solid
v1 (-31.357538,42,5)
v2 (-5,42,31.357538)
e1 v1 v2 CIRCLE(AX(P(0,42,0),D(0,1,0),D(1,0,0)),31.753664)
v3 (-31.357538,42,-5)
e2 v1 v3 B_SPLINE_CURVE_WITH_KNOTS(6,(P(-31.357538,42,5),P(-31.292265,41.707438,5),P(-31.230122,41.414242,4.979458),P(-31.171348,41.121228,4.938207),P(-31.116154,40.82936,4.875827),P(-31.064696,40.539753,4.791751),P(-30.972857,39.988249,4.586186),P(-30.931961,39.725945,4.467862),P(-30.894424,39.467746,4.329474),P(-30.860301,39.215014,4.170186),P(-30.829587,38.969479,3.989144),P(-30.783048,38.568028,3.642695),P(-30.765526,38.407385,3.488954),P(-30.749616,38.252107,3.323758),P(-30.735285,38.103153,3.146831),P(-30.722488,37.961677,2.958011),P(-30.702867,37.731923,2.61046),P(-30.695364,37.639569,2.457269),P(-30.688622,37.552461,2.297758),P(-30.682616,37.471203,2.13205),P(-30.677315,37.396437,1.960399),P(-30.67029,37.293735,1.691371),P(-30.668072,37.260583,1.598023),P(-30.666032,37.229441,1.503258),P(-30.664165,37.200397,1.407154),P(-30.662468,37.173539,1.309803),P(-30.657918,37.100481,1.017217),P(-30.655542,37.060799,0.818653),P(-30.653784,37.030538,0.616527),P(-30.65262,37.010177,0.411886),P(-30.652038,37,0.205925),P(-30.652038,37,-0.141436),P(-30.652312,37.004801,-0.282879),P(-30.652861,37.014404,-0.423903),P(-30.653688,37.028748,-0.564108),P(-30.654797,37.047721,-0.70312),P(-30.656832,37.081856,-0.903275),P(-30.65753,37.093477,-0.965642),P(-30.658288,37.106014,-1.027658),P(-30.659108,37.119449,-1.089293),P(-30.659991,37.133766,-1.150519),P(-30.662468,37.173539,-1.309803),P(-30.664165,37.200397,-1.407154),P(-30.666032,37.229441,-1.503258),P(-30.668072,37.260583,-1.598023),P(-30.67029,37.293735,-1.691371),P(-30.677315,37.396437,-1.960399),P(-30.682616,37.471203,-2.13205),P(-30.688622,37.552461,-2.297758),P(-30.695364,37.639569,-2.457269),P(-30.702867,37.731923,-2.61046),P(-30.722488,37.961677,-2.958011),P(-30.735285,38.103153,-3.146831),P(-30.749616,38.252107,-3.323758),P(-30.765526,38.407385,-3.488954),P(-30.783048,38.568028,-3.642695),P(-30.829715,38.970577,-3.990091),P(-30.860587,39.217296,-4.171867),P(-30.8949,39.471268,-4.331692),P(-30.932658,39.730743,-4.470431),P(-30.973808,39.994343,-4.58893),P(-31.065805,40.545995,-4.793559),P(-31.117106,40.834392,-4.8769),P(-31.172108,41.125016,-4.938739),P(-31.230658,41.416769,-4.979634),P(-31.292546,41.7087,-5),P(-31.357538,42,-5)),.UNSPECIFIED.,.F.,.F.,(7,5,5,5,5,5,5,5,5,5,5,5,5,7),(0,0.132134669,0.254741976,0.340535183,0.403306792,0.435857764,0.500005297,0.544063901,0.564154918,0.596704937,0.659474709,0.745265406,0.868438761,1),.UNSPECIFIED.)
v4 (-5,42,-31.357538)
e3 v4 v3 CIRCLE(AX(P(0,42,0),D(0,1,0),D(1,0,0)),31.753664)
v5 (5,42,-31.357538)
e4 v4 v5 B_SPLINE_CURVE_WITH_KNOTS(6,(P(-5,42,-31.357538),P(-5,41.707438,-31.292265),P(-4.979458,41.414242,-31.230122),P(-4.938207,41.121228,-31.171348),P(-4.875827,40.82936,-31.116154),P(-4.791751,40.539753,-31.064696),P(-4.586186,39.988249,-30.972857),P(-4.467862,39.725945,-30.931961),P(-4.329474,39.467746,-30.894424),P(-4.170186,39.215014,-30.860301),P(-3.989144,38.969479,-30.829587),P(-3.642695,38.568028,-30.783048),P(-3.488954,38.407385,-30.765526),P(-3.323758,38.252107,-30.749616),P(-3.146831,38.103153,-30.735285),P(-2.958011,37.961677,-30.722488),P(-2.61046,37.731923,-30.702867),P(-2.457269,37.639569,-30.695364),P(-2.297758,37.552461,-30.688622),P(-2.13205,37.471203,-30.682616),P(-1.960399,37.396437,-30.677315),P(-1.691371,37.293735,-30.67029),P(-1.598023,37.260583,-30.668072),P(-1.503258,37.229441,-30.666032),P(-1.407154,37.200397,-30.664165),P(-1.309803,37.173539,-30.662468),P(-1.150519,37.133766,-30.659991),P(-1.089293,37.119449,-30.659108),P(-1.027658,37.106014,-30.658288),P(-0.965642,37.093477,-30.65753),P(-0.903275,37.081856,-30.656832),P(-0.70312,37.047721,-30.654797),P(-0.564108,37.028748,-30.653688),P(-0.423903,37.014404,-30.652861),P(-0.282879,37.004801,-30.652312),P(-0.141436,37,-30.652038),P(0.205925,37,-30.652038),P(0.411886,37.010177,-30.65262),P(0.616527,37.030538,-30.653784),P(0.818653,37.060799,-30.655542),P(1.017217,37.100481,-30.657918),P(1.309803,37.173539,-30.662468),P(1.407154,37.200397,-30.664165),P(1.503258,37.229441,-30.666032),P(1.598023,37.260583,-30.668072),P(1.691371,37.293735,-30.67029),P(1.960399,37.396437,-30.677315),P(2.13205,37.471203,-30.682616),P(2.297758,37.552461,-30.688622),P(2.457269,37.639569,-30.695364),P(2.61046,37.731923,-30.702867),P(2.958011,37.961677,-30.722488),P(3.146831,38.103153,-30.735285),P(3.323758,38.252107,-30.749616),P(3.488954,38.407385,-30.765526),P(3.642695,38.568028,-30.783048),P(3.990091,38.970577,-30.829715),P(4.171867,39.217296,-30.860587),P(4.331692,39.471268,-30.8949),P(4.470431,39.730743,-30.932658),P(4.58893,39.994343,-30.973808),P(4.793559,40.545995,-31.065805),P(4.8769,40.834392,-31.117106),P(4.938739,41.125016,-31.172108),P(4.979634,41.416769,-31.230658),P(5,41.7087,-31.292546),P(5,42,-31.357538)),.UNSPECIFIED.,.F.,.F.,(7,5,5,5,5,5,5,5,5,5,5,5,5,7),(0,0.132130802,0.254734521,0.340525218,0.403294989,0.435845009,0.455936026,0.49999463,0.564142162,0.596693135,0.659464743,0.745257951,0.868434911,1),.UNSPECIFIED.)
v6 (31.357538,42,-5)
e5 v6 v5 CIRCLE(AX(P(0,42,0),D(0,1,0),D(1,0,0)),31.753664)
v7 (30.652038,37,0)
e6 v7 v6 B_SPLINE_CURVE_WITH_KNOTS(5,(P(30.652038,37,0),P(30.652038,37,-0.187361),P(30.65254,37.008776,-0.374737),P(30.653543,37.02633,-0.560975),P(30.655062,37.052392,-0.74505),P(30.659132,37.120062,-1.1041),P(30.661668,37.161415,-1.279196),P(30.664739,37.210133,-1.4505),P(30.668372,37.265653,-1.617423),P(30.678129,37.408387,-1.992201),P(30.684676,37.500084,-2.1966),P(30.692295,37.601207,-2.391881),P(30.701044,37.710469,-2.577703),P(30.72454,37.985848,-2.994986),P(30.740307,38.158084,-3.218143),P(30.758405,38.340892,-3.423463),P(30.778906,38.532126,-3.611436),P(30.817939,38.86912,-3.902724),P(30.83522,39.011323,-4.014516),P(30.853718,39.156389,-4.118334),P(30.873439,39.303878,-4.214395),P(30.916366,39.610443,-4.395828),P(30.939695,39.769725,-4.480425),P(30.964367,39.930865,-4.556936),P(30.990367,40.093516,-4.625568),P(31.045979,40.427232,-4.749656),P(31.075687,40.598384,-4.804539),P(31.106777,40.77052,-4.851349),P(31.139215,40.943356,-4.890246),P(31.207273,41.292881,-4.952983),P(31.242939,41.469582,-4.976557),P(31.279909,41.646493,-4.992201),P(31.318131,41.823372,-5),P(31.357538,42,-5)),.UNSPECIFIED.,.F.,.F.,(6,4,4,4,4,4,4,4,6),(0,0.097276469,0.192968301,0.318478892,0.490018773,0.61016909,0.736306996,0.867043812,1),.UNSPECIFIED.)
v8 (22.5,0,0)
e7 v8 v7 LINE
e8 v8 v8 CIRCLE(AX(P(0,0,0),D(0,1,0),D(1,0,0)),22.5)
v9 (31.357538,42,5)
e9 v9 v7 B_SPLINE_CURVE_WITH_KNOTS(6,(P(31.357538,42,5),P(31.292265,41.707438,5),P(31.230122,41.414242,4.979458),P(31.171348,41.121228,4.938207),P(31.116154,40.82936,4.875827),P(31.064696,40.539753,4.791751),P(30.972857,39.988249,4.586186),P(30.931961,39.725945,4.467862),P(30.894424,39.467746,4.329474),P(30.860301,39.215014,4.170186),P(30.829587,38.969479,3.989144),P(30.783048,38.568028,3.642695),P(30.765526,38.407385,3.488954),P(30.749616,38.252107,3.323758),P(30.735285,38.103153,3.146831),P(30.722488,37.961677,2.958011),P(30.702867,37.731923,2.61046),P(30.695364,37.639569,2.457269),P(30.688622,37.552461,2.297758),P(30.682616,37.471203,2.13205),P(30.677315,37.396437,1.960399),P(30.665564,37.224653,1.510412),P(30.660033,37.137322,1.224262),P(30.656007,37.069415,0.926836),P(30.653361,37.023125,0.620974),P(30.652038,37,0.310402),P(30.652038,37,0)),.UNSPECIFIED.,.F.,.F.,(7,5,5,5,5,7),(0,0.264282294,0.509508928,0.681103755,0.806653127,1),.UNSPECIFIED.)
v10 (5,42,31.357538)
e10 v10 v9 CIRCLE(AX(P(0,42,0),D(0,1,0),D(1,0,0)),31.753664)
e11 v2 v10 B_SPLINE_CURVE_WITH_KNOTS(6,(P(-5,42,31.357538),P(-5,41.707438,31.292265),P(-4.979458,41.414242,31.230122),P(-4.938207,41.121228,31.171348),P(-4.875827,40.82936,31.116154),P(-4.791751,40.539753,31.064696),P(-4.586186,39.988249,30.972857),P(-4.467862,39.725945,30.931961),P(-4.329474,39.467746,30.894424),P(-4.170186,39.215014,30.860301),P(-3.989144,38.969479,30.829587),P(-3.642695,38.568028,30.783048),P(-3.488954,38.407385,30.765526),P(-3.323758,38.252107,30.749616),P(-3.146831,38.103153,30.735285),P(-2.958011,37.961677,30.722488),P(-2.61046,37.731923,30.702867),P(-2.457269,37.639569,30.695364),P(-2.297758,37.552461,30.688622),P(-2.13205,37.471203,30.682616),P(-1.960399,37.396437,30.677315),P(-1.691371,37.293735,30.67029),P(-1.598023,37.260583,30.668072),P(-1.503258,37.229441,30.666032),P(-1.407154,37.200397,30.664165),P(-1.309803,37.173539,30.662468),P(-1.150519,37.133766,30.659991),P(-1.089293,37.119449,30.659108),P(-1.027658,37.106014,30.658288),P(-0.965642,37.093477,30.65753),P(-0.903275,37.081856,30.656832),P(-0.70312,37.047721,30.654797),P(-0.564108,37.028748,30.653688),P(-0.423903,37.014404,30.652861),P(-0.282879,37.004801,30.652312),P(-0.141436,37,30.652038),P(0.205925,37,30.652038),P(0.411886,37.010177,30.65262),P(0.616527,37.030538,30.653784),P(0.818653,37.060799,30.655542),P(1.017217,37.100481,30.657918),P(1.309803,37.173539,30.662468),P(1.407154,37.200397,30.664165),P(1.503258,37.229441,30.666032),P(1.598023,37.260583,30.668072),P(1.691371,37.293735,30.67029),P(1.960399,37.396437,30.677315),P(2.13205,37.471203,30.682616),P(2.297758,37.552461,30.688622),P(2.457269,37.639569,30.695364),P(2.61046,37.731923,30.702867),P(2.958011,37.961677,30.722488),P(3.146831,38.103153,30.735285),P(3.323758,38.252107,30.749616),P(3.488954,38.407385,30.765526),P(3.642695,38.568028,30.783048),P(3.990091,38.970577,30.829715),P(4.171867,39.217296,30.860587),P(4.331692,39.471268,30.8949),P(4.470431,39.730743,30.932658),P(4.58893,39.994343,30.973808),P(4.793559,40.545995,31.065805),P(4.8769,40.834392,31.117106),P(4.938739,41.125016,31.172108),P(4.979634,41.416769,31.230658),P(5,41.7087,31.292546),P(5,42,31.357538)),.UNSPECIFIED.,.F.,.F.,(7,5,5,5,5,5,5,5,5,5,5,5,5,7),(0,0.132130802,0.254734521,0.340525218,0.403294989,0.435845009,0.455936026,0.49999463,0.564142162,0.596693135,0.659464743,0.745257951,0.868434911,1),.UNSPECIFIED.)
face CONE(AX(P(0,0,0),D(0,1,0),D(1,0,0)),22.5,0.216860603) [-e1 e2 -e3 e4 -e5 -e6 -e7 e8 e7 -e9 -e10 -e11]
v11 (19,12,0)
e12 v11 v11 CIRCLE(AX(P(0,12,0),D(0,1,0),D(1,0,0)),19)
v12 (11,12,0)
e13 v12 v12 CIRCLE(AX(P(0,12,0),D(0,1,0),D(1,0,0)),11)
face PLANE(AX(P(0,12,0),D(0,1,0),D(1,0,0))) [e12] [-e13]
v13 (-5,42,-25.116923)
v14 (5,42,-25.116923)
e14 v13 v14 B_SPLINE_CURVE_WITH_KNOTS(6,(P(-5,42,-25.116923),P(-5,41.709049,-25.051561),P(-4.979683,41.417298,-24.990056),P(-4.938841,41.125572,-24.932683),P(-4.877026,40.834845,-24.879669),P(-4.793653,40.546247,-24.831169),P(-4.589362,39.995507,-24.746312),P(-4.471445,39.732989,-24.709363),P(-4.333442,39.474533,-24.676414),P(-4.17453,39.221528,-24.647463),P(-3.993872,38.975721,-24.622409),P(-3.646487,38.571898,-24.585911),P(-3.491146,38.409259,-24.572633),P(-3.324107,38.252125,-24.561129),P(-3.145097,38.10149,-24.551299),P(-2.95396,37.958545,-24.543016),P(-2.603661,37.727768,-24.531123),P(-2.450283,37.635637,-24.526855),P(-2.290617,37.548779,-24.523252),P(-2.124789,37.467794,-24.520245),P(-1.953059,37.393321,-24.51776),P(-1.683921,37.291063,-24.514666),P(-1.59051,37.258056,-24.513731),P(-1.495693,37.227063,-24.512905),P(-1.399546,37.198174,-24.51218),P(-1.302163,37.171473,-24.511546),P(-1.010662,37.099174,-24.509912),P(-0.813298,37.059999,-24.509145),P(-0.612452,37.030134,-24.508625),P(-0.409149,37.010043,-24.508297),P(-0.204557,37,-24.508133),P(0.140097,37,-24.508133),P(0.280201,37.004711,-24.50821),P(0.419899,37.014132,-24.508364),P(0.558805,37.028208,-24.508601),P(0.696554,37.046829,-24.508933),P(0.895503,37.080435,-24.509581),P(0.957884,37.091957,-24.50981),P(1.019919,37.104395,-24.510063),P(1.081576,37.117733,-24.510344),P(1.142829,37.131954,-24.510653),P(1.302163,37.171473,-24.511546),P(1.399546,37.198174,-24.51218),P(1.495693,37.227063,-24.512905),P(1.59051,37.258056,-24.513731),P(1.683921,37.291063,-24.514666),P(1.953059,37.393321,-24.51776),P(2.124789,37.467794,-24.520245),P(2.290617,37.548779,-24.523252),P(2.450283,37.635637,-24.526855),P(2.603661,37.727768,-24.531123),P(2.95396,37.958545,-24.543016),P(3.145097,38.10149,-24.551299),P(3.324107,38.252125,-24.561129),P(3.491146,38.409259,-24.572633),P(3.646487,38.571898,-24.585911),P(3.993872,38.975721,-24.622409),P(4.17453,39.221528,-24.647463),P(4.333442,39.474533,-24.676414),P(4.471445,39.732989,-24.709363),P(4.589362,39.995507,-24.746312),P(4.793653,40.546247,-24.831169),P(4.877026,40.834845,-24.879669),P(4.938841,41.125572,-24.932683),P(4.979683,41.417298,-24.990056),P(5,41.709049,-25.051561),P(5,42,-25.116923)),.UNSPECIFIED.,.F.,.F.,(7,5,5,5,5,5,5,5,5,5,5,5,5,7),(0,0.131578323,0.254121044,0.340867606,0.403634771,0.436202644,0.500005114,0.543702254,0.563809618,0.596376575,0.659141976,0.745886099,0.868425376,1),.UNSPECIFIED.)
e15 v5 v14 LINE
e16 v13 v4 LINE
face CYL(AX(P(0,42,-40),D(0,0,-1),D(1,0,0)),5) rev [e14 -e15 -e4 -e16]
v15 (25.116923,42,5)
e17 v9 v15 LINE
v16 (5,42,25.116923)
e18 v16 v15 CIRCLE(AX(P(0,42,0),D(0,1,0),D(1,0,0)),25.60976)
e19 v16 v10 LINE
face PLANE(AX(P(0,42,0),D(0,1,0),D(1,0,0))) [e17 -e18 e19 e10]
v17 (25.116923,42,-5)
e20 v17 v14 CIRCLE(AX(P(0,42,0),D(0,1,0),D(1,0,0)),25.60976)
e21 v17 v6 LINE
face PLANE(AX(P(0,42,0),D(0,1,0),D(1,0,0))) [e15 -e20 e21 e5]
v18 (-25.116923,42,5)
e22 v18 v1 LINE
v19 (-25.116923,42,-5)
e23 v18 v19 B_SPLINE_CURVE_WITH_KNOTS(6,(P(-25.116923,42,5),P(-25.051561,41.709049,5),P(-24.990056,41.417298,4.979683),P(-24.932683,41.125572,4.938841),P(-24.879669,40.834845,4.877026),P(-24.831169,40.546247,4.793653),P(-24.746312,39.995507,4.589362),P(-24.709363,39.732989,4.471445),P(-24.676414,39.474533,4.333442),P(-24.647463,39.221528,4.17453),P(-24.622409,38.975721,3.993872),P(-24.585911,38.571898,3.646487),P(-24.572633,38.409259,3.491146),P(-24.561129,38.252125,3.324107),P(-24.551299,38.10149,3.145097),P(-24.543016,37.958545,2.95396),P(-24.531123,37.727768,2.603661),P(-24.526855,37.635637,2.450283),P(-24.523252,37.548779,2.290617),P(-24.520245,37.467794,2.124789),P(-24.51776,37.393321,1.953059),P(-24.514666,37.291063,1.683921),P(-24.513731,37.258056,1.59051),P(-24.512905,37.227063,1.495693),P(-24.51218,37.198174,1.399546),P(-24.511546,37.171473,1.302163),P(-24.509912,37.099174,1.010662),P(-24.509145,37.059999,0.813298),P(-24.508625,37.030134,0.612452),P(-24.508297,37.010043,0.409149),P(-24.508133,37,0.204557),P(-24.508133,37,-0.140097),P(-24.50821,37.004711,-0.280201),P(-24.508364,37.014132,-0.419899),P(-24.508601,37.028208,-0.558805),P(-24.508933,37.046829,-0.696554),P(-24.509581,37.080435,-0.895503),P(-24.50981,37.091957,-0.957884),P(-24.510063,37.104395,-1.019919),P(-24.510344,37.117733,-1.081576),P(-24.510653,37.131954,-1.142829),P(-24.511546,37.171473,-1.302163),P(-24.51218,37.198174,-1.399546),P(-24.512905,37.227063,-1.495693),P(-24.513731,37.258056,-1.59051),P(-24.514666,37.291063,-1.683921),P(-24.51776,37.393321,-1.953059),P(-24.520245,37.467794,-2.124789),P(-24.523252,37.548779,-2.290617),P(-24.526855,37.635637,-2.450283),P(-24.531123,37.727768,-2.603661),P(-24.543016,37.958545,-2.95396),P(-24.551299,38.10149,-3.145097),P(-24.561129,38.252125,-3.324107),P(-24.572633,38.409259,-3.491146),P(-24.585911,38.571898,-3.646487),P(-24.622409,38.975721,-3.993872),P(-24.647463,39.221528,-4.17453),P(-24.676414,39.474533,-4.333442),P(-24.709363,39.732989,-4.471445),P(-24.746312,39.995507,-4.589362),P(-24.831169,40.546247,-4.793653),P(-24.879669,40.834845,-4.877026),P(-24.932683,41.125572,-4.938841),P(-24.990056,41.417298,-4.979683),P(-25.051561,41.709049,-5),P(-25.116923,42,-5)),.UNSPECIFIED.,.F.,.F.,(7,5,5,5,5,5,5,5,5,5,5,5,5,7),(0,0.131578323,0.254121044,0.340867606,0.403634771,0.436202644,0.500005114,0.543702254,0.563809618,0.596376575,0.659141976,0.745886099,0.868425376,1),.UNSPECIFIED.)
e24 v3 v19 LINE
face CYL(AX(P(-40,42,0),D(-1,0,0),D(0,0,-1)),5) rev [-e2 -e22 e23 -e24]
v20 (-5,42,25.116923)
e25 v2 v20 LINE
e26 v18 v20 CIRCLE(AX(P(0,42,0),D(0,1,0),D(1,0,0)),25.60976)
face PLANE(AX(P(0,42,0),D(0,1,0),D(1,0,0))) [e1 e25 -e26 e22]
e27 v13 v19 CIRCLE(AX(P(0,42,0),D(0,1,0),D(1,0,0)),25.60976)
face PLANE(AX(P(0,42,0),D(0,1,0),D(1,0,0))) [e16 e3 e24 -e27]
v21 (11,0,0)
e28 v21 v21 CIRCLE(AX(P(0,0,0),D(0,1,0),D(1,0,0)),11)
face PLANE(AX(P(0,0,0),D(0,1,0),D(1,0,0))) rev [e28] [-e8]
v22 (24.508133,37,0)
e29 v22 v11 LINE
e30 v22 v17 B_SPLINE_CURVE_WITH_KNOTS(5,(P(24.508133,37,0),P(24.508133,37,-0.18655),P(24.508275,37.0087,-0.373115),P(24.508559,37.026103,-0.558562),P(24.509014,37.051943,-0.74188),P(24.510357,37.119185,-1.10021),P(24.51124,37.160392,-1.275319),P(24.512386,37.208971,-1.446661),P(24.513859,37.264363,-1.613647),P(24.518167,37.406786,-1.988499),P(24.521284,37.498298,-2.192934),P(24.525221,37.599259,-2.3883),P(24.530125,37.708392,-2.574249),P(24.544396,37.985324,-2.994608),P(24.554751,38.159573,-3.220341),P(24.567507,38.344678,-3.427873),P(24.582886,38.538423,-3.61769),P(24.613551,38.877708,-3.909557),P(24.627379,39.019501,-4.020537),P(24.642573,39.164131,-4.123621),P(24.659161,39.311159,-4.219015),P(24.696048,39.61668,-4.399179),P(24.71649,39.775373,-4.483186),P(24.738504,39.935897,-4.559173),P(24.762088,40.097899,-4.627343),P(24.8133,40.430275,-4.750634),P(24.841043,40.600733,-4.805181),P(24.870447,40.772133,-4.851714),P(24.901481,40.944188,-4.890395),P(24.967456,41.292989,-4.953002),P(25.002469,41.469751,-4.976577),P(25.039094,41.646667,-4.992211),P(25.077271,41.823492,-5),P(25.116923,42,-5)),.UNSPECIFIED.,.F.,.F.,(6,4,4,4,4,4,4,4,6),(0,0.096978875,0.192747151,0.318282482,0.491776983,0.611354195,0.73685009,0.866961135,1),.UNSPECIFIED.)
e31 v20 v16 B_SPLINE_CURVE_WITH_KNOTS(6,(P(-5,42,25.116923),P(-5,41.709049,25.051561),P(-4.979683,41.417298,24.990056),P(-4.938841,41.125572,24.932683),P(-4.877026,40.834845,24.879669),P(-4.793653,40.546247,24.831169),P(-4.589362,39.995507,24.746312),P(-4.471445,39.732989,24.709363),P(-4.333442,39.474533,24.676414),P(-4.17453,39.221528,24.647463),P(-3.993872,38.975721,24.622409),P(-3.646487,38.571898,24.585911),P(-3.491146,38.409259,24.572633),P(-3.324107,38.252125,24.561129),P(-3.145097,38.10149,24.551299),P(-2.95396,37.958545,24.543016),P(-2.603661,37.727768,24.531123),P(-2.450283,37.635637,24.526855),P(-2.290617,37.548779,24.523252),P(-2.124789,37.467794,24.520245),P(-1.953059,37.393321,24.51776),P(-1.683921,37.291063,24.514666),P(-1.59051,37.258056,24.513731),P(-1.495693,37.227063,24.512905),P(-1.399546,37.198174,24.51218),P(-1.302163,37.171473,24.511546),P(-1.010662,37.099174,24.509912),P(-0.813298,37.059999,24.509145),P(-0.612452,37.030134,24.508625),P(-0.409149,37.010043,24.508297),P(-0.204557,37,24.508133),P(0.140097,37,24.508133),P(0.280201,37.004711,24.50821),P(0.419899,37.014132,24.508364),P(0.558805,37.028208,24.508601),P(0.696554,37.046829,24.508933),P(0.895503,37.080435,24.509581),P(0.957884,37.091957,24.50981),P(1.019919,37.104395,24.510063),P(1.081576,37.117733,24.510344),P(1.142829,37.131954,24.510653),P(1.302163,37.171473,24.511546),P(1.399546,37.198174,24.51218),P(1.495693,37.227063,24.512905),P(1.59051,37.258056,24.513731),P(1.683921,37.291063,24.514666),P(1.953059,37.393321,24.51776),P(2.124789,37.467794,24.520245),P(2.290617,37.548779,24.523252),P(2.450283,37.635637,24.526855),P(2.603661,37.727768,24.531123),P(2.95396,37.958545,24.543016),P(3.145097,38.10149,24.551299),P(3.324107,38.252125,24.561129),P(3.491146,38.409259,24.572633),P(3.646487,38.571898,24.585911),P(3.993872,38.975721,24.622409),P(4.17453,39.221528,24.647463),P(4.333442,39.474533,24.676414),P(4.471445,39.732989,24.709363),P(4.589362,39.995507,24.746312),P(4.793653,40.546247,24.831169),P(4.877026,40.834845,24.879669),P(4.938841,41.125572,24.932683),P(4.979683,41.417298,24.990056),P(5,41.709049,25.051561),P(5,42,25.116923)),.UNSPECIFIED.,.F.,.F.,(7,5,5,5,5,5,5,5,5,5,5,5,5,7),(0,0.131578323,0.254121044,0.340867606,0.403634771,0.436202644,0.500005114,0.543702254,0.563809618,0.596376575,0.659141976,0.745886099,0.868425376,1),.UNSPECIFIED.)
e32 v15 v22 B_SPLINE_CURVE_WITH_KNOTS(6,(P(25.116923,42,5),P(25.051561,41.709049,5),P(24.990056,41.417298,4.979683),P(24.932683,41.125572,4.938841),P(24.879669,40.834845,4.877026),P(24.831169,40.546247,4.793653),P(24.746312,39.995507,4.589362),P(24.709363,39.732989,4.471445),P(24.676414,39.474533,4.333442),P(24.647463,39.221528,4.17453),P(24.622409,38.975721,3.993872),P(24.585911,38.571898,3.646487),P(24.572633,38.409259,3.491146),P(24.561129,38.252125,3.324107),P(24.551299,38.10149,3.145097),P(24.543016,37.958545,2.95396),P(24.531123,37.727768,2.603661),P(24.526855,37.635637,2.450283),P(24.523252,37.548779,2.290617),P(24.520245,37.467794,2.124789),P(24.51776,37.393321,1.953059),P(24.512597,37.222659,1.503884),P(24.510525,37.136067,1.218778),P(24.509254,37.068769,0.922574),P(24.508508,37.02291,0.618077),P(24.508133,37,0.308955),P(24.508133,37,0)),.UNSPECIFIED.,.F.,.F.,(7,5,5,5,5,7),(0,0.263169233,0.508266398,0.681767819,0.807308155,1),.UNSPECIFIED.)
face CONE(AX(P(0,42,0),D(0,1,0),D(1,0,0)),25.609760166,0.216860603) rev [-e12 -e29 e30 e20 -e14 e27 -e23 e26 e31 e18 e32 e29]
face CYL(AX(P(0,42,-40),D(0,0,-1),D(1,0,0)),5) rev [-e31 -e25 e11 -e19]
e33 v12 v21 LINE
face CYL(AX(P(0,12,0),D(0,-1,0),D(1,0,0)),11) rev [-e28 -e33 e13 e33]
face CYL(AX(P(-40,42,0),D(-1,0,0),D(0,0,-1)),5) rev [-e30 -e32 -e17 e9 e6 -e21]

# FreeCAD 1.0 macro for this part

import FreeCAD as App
import Part
import Sketcher

V = App.Vector

doc = App.newDocument("Part")
body = doc.addObject("PartDesign::Body", "Body")

# Sketch on XY plane
sketch1 = doc.addObject("Sketcher::SketchObject", "Sketch")
body.addObject(sketch1)
sketch1.AttachmentSupport = (doc.XY_Plane, [""])
sketch1.MapMode = "FlatFace"
sketch1.addGeometry(Part.LineSegment(V(11, 0, 0), V(22, 0, 0)), False)
sketch1.addGeometry(Part.LineSegment(V(22, 0, 0), V(32, 42, 0)), False)
sketch1.addGeometry(Part.LineSegment(V(32, 42, 0), V(26, 42, 0)), False)
sketch1.addGeometry(Part.LineSegment(V(26, 42, 0), V(19, 12, 0)), False)
sketch1.addGeometry(Part.LineSegment(V(19, 12, 0), V(11, 12, 0)), False)
sketch1.addGeometry(Part.LineSegment(V(11, 12, 0), V(11, 0, 0)), False)
sketch1.addConstraint(Sketcher.Constraint("Coincident", 0, 2, 1, 1))
sketch1.addConstraint(Sketcher.Constraint("Coincident", 1, 2, 2, 1))
sketch1.addConstraint(Sketcher.Constraint("Coincident", 2, 2, 3, 1))
sketch1.addConstraint(Sketcher.Constraint("Coincident", 3, 2, 4, 1))
sketch1.addConstraint(Sketcher.Constraint("Coincident", 4, 2, 5, 1))
sketch1.addConstraint(Sketcher.Constraint("Coincident", 5, 2, 0, 1))
sketch1.addConstraint(Sketcher.Constraint("Horizontal", 0))
sketch1.addConstraint(Sketcher.Constraint("Horizontal", 2))
sketch1.addConstraint(Sketcher.Constraint("Horizontal", 4))
sketch1.addConstraint(Sketcher.Constraint("Vertical", 5))
sketch1.addConstraint(Sketcher.Constraint("PointOnObject", 0, 2, -1))
sketch1.addConstraint(Sketcher.Constraint("Parallel", 1, 3))
sketch1.addConstraint(Sketcher.Constraint("DistanceX", 4, 2, 4, 1, 8.0))
sketch1.addConstraint(Sketcher.Constraint("DistanceY", 5, 2, 5, 1, 12.0))
sketch1.addConstraint(Sketcher.Constraint("DistanceX", 0, 1, 0, 2, 11.5))
sketch1.addConstraint(Sketcher.Constraint("DistanceY", -1, 1, 1, 2, 42.0))
sketch1.addConstraint(Sketcher.Constraint("DistanceX", -1, 1, 3, 2, 19.0))
sketch1.addConstraint(Sketcher.Constraint("Distance", 1, 43.007328))
revolution = doc.addObject("PartDesign::Revolution", "Revolution")
body.addObject(revolution)
revolution.Profile = sketch1
revolution.ReferenceAxis = (sketch1, ["V_Axis"])
revolution.Angle = 360

# Sketch on XY plane
sketch2 = doc.addObject("Sketcher::SketchObject", "Sketch001")
body.addObject(sketch2)
sketch2.AttachmentSupport = (doc.XY_Plane, [""])
sketch2.MapMode = "FlatFace"
sketch2.AttachmentOffset = App.Placement(V(0, 0, -40), App.Rotation())
sketch2.addGeometry(Part.Circle(V(0, 42, 0), V(0, 0, 1), 5), False)
sketch2.addConstraint(Sketcher.Constraint("PointOnObject", 0, 3, -2))
sketch2.addConstraint(Sketcher.Constraint("Diameter", 0, 10.0))
sketch2.addConstraint(Sketcher.Constraint("DistanceY", -1, 1, 0, 3, 42.0))
pocket1 = doc.addObject("PartDesign::Pocket", "Pocket")
body.addObject(pocket1)
pocket1.Profile = sketch2
pocket1.Length = 79
pocket1.Reversed = True
doc.recompute()

polarpattern = doc.addObject("PartDesign::PolarPattern", "PolarPattern")
body.addObject(polarpattern)
polarpattern.Originals = [pocket1]
polarpattern.Axis = (doc.Y_Axis, [""])
polarpattern.Angle = 360
polarpattern.Occurrences = 4
body.Tip = polarpattern

doc.recompute()
